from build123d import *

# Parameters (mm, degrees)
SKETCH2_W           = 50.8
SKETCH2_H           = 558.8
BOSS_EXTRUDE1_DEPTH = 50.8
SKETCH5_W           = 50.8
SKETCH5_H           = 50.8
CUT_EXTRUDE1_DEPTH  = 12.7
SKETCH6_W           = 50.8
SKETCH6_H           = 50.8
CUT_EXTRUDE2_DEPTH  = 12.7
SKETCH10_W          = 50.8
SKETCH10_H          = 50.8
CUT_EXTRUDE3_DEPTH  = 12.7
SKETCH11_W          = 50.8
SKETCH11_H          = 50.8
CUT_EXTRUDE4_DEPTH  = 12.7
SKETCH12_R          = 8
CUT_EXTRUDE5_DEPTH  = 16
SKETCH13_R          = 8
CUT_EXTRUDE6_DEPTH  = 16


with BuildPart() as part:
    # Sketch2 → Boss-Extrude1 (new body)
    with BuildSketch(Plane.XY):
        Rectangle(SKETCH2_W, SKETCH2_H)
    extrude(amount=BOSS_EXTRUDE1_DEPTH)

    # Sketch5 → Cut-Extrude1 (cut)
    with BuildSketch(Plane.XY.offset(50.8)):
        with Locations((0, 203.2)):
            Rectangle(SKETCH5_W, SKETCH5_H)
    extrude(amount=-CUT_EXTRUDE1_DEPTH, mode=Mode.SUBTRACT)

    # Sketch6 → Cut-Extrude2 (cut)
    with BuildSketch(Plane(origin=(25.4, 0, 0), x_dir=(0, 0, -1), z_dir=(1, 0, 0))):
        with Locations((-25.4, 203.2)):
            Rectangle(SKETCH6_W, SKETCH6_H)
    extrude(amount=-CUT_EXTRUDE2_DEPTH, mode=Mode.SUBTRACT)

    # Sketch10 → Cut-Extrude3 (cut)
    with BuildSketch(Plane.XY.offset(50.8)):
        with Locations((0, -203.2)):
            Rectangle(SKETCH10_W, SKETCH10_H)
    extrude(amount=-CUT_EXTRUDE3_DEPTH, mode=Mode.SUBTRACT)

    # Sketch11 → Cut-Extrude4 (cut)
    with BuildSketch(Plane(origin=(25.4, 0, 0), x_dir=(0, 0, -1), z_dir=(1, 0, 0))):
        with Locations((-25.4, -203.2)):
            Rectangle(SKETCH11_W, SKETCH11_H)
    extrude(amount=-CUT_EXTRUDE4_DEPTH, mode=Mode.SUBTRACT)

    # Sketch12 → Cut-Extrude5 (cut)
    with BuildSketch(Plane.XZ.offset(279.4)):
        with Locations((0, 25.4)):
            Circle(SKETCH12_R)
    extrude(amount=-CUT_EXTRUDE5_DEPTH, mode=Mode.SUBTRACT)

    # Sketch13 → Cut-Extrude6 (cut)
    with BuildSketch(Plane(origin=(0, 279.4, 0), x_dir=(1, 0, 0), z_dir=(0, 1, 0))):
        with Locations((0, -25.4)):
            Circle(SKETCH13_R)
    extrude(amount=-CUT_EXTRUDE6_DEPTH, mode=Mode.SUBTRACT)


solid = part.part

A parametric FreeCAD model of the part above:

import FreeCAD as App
import Part
import Sketcher
Q = App.Units.Quantity

doc = App.newDocument("Part")
params = doc.addObject("Spreadsheet::Sheet", "Params")
for row, (alias, value) in enumerate([
    ("sketch1_width", "2 in"),
    ("sketch1_height", "22 in"),
    ("pad1_length", "2 in"),
    ("sketch2_width", "2 in"),
    ("pocket1_length", "0.5 in"),
    ("sketch3_width", "2 in"),
    ("pocket2_length", "0.5 in"),
    ("sketch4_width", "2 in"),
    ("pocket3_length", "0.5 in"),
    ("sketch5_width", "2 in"),
    ("pocket4_length", "0.5 in"),
    ("pocket5_length", "16 mm"),
    ("pocket6_length", "16 mm"),
], start=1):
    params.set(f"A{row}", alias)
    params.set(f"B{row}", "=" + value)
    params.setAlias(f"B{row}", alias)

body = doc.addObject("PartDesign::Body", "Body")

# Sketch on XY plane
sketch1 = body.newObject("Sketcher::SketchObject", "Sketch")
sketch1.AttachmentSupport = (doc.getObject("XY_Plane"), [""])
sketch1.MapMode = "FlatFace"
sketch1.addGeometry([
    Part.LineSegment(App.Vector(-25.4, 279.4, 0), App.Vector(-25.4, -279.4, 0)),
    Part.LineSegment(App.Vector(-25.4, -279.4, 0), App.Vector(25.4, -279.4, 0)),
    Part.LineSegment(App.Vector(25.4, -279.4, 0), App.Vector(25.4, 279.4, 0)),
    Part.LineSegment(App.Vector(25.4, 279.4, 0), App.Vector(-25.4, 279.4, 0)),
], False)
sketch1.addConstraint([
    Sketcher.Constraint("Coincident", 0, 2, 1, 1),
    Sketcher.Constraint("Coincident", 1, 2, 2, 1),
    Sketcher.Constraint("Coincident", 2, 2, 3, 1),
    Sketcher.Constraint("Coincident", 3, 2, 0, 1),
    Sketcher.Constraint("Vertical", 0),
    Sketcher.Constraint("Horizontal", 1),
    Sketcher.Constraint("Vertical", 2),
    Sketcher.Constraint("Horizontal", 3),
    Sketcher.Constraint("Symmetric", 0, 2, 2, 2, -1, 1),
    Sketcher.Constraint("DistanceX", 1, 1, 1, 2, Q("2 in")),
    Sketcher.Constraint("DistanceY", 0, 2, 0, 1, Q("22 in")),
])
sketch1.setExpression("Constraints[9]", "Params.sketch1_width")
sketch1.setExpression("Constraints[10]", "Params.sketch1_height")
pad1 = body.newObject("PartDesign::Pad", "Pad")
pad1.Profile = sketch1
pad1.setExpression("Length", "Params.pad1_length")

# Sketch on XY plane
sketch2 = body.newObject("Sketcher::SketchObject", "Sketch001")
sketch2.AttachmentSupport = (doc.getObject("XY_Plane"), [""])
sketch2.MapMode = "FlatFace"
sketch2.AttachmentOffset = App.Placement(App.Vector(0, 0, 2 * 25.4), App.Rotation())
sketch2.addGeometry([
    Part.LineSegment(App.Vector(-25.4, 228.6, 0), App.Vector(-25.4, 177.8, 0)),
    Part.LineSegment(App.Vector(-25.4, 177.8, 0), App.Vector(25.4, 177.8, 0)),
    Part.LineSegment(App.Vector(25.4, 177.8, 0), App.Vector(25.4, 228.6, 0)),
    Part.LineSegment(App.Vector(25.4, 228.6, 0), App.Vector(-25.4, 228.6, 0)),
], False)
sketch2.addConstraint([
    Sketcher.Constraint("Coincident", 0, 2, 1, 1),
    Sketcher.Constraint("Coincident", 1, 2, 2, 1),
    Sketcher.Constraint("Coincident", 2, 2, 3, 1),
    Sketcher.Constraint("Coincident", 3, 2, 0, 1),
    Sketcher.Constraint("Vertical", 0),
    Sketcher.Constraint("Horizontal", 1),
    Sketcher.Constraint("Vertical", 2),
    Sketcher.Constraint("Horizontal", 3),
    Sketcher.Constraint("Equal", 3, 0),
    Sketcher.Constraint("DistanceX", 1, 1, 1, 2, Q("2 in")),
    Sketcher.Constraint("DistanceX", 0, 2, -1, 1, Q("1 in")),
    Sketcher.Constraint("DistanceY", -1, 1, 0, 2, Q("7 in")),
])
sketch2.setExpression("Constraints[9]", "Params.sketch2_width")
pocket1 = body.newObject("PartDesign::Pocket", "Pocket")
pocket1.Profile = sketch2
pocket1.setExpression("Length", "Params.pocket1_length")

# Sketch on YZ plane
sketch3 = body.newObject("Sketcher::SketchObject", "Sketch002")
sketch3.AttachmentSupport = (doc.getObject("YZ_Plane"), [""])
sketch3.MapMode = "FlatFace"
sketch3.AttachmentOffset = App.Placement(App.Vector(0, 0, 1 * 25.4), App.Rotation())
sketch3.addGeometry([
    Part.LineSegment(App.Vector(228.6, 50.8, 0), App.Vector(177.8, 50.8, 0)),
    Part.LineSegment(App.Vector(177.8, 50.8, 0), App.Vector(177.8, 0, 0)),
    Part.LineSegment(App.Vector(177.8, 0, 0), App.Vector(228.6, 0, 0)),
    Part.LineSegment(App.Vector(228.6, 0, 0), App.Vector(228.6, 50.8, 0)),
], False)
sketch3.addConstraint([
    Sketcher.Constraint("Coincident", 0, 2, 1, 1),
    Sketcher.Constraint("Coincident", 1, 2, 2, 1),
    Sketcher.Constraint("Coincident", 2, 2, 3, 1),
    Sketcher.Constraint("Coincident", 3, 2, 0, 1),
    Sketcher.Constraint("Horizontal", 0),
    Sketcher.Constraint("Vertical", 1),
    Sketcher.Constraint("Horizontal", 2),
    Sketcher.Constraint("Vertical", 3),
    Sketcher.Constraint("PointOnObject", 1, 2, -1),
    Sketcher.Constraint("Equal", 2, 1),
    Sketcher.Constraint("DistanceX", 0, 2, 0, 1, Q("2 in")),
    Sketcher.Constraint("DistanceX", -1, 1, 0, 2, Q("7 in")),
])
sketch3.setExpression("Constraints[10]", "Params.sketch3_width")
pocket2 = body.newObject("PartDesign::Pocket", "Pocket001")
pocket2.Profile = sketch3
pocket2.setExpression("Length", "Params.pocket2_length")

# Sketch on XY plane
sketch4 = body.newObject("Sketcher::SketchObject", "Sketch003")
sketch4.AttachmentSupport = (doc.getObject("XY_Plane"), [""])
sketch4.MapMode = "FlatFace"
sketch4.AttachmentOffset = App.Placement(App.Vector(0, 0, 2 * 25.4), App.Rotation())
sketch4.addGeometry([
    Part.LineSegment(App.Vector(-25.4, -177.8, 0), App.Vector(-25.4, -228.6, 0)),
    Part.LineSegment(App.Vector(-25.4, -228.6, 0), App.Vector(25.4, -228.6, 0)),
    Part.LineSegment(App.Vector(25.4, -228.6, 0), App.Vector(25.4, -177.8, 0)),
    Part.LineSegment(App.Vector(25.4, -177.8, 0), App.Vector(-25.4, -177.8, 0)),
], False)
sketch4.addConstraint([
    Sketcher.Constraint("Coincident", 0, 2, 1, 1),
    Sketcher.Constraint("Coincident", 1, 2, 2, 1),
    Sketcher.Constraint("Coincident", 2, 2, 3, 1),
    Sketcher.Constraint("Coincident", 3, 2, 0, 1),
    Sketcher.Constraint("Vertical", 0),
    Sketcher.Constraint("Horizontal", 1),
    Sketcher.Constraint("Vertical", 2),
    Sketcher.Constraint("Horizontal", 3),
    Sketcher.Constraint("Equal", 3, 0),
    Sketcher.Constraint("DistanceX", 1, 1, 1, 2, Q("2 in")),
    Sketcher.Constraint("DistanceX", 0, 2, -1, 1, Q("1 in")),
    Sketcher.Constraint("DistanceY", 0, 2, -1, 1, Q("9 in")),
])
sketch4.setExpression("Constraints[9]", "Params.sketch4_width")
pocket3 = body.newObject("PartDesign::Pocket", "Pocket002")
pocket3.Profile = sketch4
pocket3.setExpression("Length", "Params.pocket3_length")

# Sketch on YZ plane
sketch5 = body.newObject("Sketcher::SketchObject", "Sketch004")
sketch5.AttachmentSupport = (doc.getObject("YZ_Plane"), [""])
sketch5.MapMode = "FlatFace"
sketch5.AttachmentOffset = App.Placement(App.Vector(0, 0, 1 * 25.4), App.Rotation())
sketch5.addGeometry([
    Part.LineSegment(App.Vector(-177.8, 50.8, 0), App.Vector(-228.6, 50.8, 0)),
    Part.LineSegment(App.Vector(-228.6, 50.8, 0), App.Vector(-228.6, 0, 0)),
    Part.LineSegment(App.Vector(-228.6, 0, 0), App.Vector(-177.8, 0, 0)),
    Part.LineSegment(App.Vector(-177.8, 0, 0), App.Vector(-177.8, 50.8, 0)),
], False)
sketch5.addConstraint([
    Sketcher.Constraint("Coincident", 0, 2, 1, 1),
    Sketcher.Constraint("Coincident", 1, 2, 2, 1),
    Sketcher.Constraint("Coincident", 2, 2, 3, 1),
    Sketcher.Constraint("Coincident", 3, 2, 0, 1),
    Sketcher.Constraint("Horizontal", 0),
    Sketcher.Constraint("Vertical", 1),
    Sketcher.Constraint("Horizontal", 2),
    Sketcher.Constraint("Vertical", 3),
    Sketcher.Constraint("PointOnObject", 1, 2, -1),
    Sketcher.Constraint("Equal", 2, 1),
    Sketcher.Constraint("DistanceX", 0, 2, 0, 1, Q("2 in")),
    Sketcher.Constraint("DistanceX", 0, 2, -1, 1, Q("9 in")),
])
sketch5.setExpression("Constraints[10]", "Params.sketch5_width")
pocket4 = body.newObject("PartDesign::Pocket", "Pocket003")
pocket4.Profile = sketch5
pocket4.setExpression("Length", "Params.pocket4_length")

# Sketch on XZ plane
sketch6 = body.newObject("Sketcher::SketchObject", "Sketch005")
sketch6.AttachmentSupport = (doc.getObject("XZ_Plane"), [""])
sketch6.MapMode = "FlatFace"
sketch6.AttachmentOffset = App.Placement(App.Vector(0, 0, 11 * 25.4), App.Rotation())
sketch6.addGeometry(Part.Circle(App.Vector(0, 25.4, 0), App.Vector(0, 0, 1), 8), False)
sketch6.addConstraint([
    Sketcher.Constraint("PointOnObject", 0, 3, -2),
    Sketcher.Constraint("DistanceY", -1, 1, 0, 3, Q("1 in")),
    Sketcher.Constraint("Diameter", 0, Q("16 mm")),
])
pocket5 = body.newObject("PartDesign::Pocket", "Pocket004")
pocket5.Profile = sketch6
pocket5.setExpression("Length", "Params.pocket5_length")

# Sketch on XZ plane
sketch7 = body.newObject("Sketcher::SketchObject", "Sketch006")
sketch7.AttachmentSupport = (doc.getObject("XZ_Plane"), [""])
sketch7.MapMode = "FlatFace"
sketch7.AttachmentOffset = App.Placement(App.Vector(0, 0, -11 * 25.4), App.Rotation())
sketch7.addGeometry(Part.Circle(App.Vector(0, 25.4, 0), App.Vector(0, 0, 1), 8), False)
sketch7.addConstraint([
    Sketcher.Constraint("PointOnObject", 0, 3, -2),
    Sketcher.Constraint("DistanceY", -1, 1, 0, 3, Q("1 in")),
    Sketcher.Constraint("Diameter", 0, Q("16 mm")),
])
pocket6 = body.newObject("PartDesign::Pocket", "Pocket005")
pocket6.Profile = sketch7
pocket6.setExpression("Length", "Params.pocket6_length")
pocket6.Reversed = True

doc.recompute()
